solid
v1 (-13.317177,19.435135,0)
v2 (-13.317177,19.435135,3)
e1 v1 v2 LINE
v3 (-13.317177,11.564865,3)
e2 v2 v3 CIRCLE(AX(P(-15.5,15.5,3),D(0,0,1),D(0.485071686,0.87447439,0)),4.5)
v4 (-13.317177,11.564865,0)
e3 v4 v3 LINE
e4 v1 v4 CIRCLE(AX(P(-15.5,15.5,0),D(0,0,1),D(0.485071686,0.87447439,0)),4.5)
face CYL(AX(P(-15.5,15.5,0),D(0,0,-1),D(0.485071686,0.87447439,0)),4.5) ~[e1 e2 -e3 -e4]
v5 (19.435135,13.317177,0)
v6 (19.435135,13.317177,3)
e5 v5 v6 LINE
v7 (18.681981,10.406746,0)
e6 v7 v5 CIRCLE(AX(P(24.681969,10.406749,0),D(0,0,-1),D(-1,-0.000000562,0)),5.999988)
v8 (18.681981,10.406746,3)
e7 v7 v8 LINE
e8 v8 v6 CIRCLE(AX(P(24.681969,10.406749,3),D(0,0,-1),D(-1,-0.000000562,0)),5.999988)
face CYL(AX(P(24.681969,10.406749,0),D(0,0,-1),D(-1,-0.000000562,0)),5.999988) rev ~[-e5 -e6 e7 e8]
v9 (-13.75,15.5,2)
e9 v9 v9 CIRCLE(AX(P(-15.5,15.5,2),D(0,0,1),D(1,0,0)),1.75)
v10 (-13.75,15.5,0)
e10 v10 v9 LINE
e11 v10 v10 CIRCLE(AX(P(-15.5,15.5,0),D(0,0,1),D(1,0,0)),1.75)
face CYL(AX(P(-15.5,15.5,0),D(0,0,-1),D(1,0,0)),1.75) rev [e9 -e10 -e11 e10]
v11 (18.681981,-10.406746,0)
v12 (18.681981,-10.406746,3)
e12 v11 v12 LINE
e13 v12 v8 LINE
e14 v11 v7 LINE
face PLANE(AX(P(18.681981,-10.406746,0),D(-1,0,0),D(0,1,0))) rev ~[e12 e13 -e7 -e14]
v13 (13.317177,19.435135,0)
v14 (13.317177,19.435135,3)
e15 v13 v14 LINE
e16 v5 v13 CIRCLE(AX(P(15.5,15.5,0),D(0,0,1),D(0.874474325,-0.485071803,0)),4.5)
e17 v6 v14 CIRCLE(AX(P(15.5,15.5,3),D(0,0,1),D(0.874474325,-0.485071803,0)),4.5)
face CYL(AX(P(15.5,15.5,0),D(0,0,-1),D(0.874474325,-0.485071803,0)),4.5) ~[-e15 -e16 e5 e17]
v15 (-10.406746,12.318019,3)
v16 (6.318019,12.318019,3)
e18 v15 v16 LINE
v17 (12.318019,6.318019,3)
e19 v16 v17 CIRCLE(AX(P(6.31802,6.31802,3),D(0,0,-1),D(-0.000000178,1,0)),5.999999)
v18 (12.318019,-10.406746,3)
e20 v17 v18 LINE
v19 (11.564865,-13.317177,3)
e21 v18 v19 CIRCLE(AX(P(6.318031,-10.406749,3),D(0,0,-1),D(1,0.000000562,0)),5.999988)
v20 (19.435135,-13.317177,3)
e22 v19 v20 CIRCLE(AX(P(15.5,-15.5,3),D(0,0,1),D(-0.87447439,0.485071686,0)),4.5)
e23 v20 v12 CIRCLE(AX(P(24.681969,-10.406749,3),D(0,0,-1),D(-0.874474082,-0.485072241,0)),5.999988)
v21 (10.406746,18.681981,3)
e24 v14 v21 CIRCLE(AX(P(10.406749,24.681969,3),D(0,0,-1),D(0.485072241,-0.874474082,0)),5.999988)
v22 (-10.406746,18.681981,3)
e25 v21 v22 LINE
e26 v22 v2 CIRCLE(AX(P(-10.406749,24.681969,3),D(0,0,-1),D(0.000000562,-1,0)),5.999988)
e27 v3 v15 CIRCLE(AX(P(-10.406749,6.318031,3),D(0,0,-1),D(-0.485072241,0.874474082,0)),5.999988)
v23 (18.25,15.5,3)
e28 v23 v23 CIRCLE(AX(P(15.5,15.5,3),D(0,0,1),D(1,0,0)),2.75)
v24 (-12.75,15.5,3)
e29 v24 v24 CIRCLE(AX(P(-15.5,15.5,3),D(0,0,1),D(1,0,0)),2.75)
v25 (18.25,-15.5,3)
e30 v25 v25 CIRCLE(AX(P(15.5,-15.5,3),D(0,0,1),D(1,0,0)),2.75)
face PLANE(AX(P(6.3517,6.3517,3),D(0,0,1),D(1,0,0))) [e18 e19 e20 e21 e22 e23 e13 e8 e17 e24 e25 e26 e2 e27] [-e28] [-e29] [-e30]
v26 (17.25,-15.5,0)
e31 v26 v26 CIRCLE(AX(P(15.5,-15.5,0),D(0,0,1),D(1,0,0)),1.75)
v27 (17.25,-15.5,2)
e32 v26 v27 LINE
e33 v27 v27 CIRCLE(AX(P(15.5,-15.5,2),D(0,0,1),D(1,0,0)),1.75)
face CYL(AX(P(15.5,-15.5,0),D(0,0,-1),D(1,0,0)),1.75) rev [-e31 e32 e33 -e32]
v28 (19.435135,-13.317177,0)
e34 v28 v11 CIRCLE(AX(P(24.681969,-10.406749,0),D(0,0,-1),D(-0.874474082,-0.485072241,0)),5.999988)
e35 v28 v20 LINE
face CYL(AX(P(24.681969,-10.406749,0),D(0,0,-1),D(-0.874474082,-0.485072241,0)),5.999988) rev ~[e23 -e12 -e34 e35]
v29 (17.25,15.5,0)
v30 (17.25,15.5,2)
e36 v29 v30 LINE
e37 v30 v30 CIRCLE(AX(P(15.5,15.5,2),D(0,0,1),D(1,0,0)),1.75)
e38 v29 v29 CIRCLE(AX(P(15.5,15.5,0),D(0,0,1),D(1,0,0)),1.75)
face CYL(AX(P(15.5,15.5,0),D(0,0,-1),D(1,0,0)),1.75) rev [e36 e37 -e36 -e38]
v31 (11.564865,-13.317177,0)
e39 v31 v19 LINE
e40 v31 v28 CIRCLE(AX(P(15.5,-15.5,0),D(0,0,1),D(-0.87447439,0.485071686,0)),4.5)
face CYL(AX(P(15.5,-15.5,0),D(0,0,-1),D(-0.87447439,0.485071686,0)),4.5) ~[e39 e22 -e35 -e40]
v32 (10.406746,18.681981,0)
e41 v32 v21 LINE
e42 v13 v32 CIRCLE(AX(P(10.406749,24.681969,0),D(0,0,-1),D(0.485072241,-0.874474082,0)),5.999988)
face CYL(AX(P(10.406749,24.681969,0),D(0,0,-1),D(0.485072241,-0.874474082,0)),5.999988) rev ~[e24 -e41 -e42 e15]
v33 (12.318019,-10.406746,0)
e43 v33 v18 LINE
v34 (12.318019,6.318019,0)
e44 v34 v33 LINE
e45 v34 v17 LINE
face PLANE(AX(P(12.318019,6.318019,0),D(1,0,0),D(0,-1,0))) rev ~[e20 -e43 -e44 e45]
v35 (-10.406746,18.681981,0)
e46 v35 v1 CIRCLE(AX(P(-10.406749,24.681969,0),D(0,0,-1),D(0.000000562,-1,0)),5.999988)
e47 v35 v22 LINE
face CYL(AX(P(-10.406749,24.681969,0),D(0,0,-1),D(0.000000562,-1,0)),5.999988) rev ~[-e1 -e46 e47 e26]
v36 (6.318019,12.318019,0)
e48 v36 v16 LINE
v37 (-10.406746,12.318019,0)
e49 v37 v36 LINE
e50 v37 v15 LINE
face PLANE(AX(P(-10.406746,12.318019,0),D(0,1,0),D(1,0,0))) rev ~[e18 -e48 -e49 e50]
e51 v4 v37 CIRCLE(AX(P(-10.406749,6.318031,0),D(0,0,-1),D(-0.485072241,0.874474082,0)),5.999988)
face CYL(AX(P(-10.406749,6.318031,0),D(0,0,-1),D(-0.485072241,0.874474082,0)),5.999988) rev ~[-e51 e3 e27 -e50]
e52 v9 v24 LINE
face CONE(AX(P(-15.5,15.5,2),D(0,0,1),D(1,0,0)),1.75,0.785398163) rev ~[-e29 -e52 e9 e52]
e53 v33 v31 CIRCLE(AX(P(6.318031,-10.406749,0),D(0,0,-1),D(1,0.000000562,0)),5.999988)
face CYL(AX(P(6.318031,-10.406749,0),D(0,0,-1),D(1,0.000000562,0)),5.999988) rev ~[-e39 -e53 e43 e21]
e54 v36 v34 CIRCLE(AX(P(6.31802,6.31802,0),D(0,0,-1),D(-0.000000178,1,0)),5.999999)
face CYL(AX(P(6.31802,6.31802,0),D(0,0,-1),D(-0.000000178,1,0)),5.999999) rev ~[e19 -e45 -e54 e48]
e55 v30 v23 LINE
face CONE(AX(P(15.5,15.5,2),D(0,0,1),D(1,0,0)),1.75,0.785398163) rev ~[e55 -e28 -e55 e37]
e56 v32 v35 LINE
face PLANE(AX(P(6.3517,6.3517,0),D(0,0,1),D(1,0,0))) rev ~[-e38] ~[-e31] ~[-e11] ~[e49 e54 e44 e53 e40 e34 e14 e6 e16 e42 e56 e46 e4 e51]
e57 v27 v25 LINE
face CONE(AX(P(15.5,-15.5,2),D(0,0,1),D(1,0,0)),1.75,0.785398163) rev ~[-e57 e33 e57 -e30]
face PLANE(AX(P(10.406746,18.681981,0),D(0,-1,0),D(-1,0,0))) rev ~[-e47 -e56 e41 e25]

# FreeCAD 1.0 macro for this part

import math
import FreeCAD as App
import Part
import Sketcher

V = App.Vector


def edges_at(feature, points):
    """Names of the edges that pass closest to the given points."""
    edges = feature.Shape.Edges
    near = lambda p: min(range(len(edges)), key=lambda i: edges[i].distToShape(Part.Vertex(*p))[0])
    return sorted({f"Edge{near(p) + 1}" for p in points})

doc = App.newDocument("Part")
params = doc.addObject("Spreadsheet::Sheet", "Params")
for row, (alias, value) in enumerate([
    ("sketch1_radius", "5.999999 mm"),
    ("sketch1_diameter", "3.5 mm"),
    ("sketch1_radius2", "4.5 mm"),
    ("pad1_length", "3 mm"),
    ("chamfer_size", "1 mm"),
], start=1):
    params.set(f"A{row}", alias)
    params.set(f"B{row}", "=" + value)
    params.setAlias(f"B{row}", alias)

body = doc.addObject("PartDesign::Body", "Body")

# Sketch on XY plane
sketch1 = doc.addObject("Sketcher::SketchObject", "Sketch")
body.addObject(sketch1)
sketch1.AttachmentSupport = (doc.XY_Plane, [""])
sketch1.MapMode = "FlatFace"
sketch1.addGeometry([
    Part.LineSegment(V(10.4, 18.7, 0), V(-10.4, 18.7, 0)),  # 0
    Part.ArcOfCircle(Part.Circle(V(-10.4, 24.7, 0), V(0, 0, 1), 6), math.radians(-119), math.radians(-90)),  # 1
    Part.ArcOfCircle(Part.Circle(V(-15.5, 15.5, 0), V(0, 0, 1), 4.5), math.radians(61), math.radians(299)),  # 2
    Part.ArcOfCircle(Part.Circle(V(-10.4, 6.3, 0), V(0, 0, 1), 6), math.radians(90), math.radians(119)),  # 3
    Part.LineSegment(V(-10.4, 12.3, 0), V(6.3, 12.3, 0)),  # 4
    Part.ArcOfCircle(Part.Circle(V(6.3, 6.3, 0), V(0, 0, 1), 6), math.radians(0), math.radians(90)),  # 5
    Part.LineSegment(V(12.3, 6.3, 0), V(12.3, -10.4, 0)),  # 6
    Part.ArcOfCircle(Part.Circle(V(6.3, -10.4, 0), V(0, 0, 1), 6), math.radians(-29), math.radians(0)),  # 7
    Part.ArcOfCircle(Part.Circle(V(15.5, -15.5, 0), V(0, 0, 1), 4.5), math.radians(151), math.radians(389)),  # 8
    Part.ArcOfCircle(Part.Circle(V(24.7, -10.4, 0), V(0, 0, 1), 6), math.radians(180), math.radians(209)),  # 9
    Part.LineSegment(V(18.7, -10.4, 0), V(18.7, 10.4, 0)),  # 10
    Part.ArcOfCircle(Part.Circle(V(24.7, 10.4, 0), V(0, 0, 1), 6), math.radians(151), math.radians(180)),  # 11
    Part.ArcOfCircle(Part.Circle(V(15.5, 15.5, 0), V(0, 0, 1), 4.5), math.radians(-29), math.radians(119)),  # 12
    Part.ArcOfCircle(Part.Circle(V(10.4, 24.7, 0), V(0, 0, 1), 6), math.radians(-90), math.radians(-61)),  # 13
    Part.Circle(V(15.5, -15.5, 0), V(0, 0, 1), 1.8),  # 14
    Part.Circle(V(-15.5, 15.5, 0), V(0, 0, 1), 1.8),  # 15
    Part.Circle(V(15.5, 15.5, 0), V(0, 0, 1), 1.8),  # 16
], False)
sketch1.addConstraint([
    Sketcher.Constraint("Tangent", 0, 2, 1, 2),
    Sketcher.Constraint("Tangent", 1, 1, 2, 1),
    Sketcher.Constraint("Tangent", 2, 2, 3, 2),
    Sketcher.Constraint("Tangent", 3, 1, 4, 1),
    Sketcher.Constraint("Tangent", 4, 2, 5, 2),
    Sketcher.Constraint("Tangent", 5, 1, 6, 1),
    Sketcher.Constraint("Tangent", 6, 2, 7, 2),
    Sketcher.Constraint("Tangent", 7, 1, 8, 1),
    Sketcher.Constraint("Tangent", 8, 2, 9, 2),
    Sketcher.Constraint("Tangent", 9, 1, 10, 1),
    Sketcher.Constraint("Tangent", 10, 2, 11, 2),
    Sketcher.Constraint("Tangent", 11, 1, 12, 1),
    Sketcher.Constraint("Tangent", 12, 2, 13, 2),
    Sketcher.Constraint("Tangent", 13, 1, 0, 1),
    Sketcher.Constraint("Horizontal", 0),
    Sketcher.Constraint("Horizontal", 4),
    Sketcher.Constraint("Vertical", 6),
    Sketcher.Constraint("Vertical", 10),
    Sketcher.Constraint("Coincident", 14, 3, 8, 3),
    Sketcher.Constraint("Coincident", 15, 3, 2, 3),
    Sketcher.Constraint("Coincident", 16, 3, 12, 3),
    Sketcher.Constraint("Equal", 1, 3),
    Sketcher.Constraint("Equal", 3, 7),
    Sketcher.Constraint("Equal", 2, 8),
    Sketcher.Constraint("Equal", 7, 9),
    Sketcher.Constraint("Equal", 9, 11),
    Sketcher.Constraint("Equal", 8, 12),
    Sketcher.Constraint("Equal", 11, 13),
    Sketcher.Constraint("Equal", 14, 15),
    Sketcher.Constraint("Equal", 15, 16),
    Sketcher.Constraint("Symmetric", 2, 3, 8, 3, -1, 1),
    Sketcher.Constraint("Symmetric", 2, 3, 12, 3, -2),
    Sketcher.Constraint("Horizontal", 7, 3, 9, 3),
    Sketcher.Constraint("Vertical", 1, 3, 3, 3),
    Sketcher.Constraint("Equal", 4, 6),
    Sketcher.Constraint("Equal", 0, 10),
    Sketcher.Constraint("Radius", 5, 5.999999),
    Sketcher.Constraint("Diameter", 14, 3.5),
    Sketcher.Constraint("Radius", 2, 4.5),
    Sketcher.Constraint("DistanceX", 2, 3, 8, 3, 31.0),
    Sketcher.Constraint("Radius", 1, 5.999988),
    Sketcher.Constraint("DistanceX", 0, 2, 0, 1, 20.813492),
])
sketch1.setExpression("Constraints[36]", "Params.sketch1_radius")
sketch1.setExpression("Constraints[37]", "Params.sketch1_diameter")
sketch1.setExpression("Constraints[38]", "Params.sketch1_radius2")
pad1 = doc.addObject("PartDesign::Pad", "Pad")
body.addObject(pad1)
pad1.Profile = sketch1
pad1.setExpression("Length", "Params.pad1_length")
doc.recompute()

chamfer = doc.addObject("PartDesign::Chamfer", "Chamfer")
body.addObject(chamfer)
chamfer.Base = (pad1, edges_at(pad1, [(-17.25, 15.5, 3), (13.75, 15.5, 3), (13.75, -15.5, 3)]))
chamfer.setExpression("Size", "Params.chamfer_size")

doc.recompute()
